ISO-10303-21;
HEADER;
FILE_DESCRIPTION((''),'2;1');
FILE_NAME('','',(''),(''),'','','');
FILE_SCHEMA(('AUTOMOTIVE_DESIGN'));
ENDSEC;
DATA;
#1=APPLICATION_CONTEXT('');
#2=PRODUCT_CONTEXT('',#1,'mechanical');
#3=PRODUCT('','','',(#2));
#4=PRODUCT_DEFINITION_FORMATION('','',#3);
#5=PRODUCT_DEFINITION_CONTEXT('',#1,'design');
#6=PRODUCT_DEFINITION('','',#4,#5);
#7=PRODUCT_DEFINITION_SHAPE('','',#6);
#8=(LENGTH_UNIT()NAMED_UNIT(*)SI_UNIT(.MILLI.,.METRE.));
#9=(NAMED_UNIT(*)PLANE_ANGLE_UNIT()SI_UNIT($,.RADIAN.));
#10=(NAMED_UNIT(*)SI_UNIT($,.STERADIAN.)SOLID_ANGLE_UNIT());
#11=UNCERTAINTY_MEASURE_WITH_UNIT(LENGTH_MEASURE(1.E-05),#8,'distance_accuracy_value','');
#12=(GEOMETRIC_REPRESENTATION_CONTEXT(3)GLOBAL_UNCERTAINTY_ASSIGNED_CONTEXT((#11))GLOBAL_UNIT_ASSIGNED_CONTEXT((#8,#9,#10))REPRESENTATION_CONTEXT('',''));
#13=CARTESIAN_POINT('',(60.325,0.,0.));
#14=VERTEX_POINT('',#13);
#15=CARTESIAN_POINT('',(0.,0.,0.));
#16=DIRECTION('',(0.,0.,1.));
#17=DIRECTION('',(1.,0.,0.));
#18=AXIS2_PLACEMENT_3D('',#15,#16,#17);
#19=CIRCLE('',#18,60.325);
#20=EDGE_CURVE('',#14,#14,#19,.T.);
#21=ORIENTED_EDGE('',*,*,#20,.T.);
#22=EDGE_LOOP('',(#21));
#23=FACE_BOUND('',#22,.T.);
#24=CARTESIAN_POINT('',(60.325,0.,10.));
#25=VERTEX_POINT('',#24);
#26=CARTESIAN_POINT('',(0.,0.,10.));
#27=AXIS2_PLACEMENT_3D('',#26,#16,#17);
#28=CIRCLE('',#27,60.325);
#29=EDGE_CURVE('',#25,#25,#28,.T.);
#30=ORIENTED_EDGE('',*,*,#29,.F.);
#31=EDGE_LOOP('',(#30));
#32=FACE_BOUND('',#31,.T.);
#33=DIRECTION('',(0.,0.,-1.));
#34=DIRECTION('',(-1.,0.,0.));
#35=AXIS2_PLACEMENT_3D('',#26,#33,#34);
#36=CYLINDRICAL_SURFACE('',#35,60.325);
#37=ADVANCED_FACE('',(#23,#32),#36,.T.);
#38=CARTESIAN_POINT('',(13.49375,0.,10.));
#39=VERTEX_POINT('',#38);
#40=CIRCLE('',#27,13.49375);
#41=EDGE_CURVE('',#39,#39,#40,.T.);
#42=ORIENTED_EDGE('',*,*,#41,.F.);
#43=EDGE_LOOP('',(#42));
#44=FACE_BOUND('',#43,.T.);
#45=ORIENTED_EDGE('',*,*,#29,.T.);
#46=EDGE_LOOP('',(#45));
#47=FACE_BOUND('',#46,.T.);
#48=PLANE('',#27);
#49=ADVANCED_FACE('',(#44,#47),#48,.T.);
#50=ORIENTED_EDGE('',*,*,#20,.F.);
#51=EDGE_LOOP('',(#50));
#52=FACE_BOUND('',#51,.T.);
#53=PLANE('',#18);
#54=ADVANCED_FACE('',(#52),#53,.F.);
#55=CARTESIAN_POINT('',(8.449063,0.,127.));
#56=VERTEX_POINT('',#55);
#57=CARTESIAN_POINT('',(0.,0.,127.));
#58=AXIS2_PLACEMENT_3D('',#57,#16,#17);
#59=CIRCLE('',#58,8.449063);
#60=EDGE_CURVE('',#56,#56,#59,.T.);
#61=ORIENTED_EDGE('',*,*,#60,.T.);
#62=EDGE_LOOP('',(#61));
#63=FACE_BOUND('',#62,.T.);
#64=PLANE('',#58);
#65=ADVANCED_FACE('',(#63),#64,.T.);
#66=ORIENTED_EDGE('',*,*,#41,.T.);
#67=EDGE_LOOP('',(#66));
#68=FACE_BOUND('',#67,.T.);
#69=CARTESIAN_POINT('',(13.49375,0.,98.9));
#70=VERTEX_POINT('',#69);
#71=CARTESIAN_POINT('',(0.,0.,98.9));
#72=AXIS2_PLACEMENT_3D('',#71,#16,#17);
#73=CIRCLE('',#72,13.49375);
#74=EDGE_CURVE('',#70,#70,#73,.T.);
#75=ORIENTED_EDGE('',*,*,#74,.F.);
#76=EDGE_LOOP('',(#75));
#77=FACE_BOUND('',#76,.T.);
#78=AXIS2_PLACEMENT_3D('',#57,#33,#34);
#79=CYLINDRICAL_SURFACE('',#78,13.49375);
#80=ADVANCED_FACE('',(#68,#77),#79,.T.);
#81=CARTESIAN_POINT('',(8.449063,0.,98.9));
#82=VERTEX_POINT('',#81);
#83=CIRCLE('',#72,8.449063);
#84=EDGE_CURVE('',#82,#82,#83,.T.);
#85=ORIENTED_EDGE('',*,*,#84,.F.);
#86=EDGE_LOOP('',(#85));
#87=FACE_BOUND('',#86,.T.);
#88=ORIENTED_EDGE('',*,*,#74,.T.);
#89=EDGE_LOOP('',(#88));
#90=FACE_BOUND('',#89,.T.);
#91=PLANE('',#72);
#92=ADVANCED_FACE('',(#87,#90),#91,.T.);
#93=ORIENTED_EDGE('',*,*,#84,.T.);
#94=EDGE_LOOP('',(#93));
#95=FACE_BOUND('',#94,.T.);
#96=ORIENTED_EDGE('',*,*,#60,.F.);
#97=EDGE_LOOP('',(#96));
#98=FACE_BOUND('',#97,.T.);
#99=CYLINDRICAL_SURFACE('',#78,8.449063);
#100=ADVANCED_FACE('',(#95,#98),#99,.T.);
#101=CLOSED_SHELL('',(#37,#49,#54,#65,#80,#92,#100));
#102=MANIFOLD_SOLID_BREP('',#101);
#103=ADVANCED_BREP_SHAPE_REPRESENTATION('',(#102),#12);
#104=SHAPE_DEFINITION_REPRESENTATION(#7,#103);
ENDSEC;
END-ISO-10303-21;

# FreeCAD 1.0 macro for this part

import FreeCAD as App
import Part
import Sketcher
from FreeCAD import Vector
Q = App.Units.Quantity

doc = App.newDocument("Part")
params = doc.addObject("Spreadsheet::Sheet", "Params")
for row, (alias, value) in enumerate([
    ("sketch1_diameter", "120.65 mm"),
    ("pad1_length", "10 mm"),
    ("pad2_length", "117 mm"),
    ("pocket1_length", "28.1 mm"),
    ("pad3_length", "28.1 mm"),
], start=1):
    params.set(f"A{row}", alias)
    params.set(f"B{row}", "=" + value)
    params.setAlias(f"B{row}", alias)

body = doc.addObject("PartDesign::Body", "Body")

# Sketch on XY plane
sketch1 = doc.addObject("Sketcher::SketchObject", "Sketch")
body.addObject(sketch1)
sketch1.AttachmentSupport = (doc.XY_Plane, [""])
sketch1.MapMode = "FlatFace"
sketch1.addGeometry(Part.Circle(Vector(0, 0, 0), Vector(0, 0, 1), 60), False)
sketch1.addConstraint(Sketcher.Constraint("Coincident", 0, 3, -1, 1))
sketch1.addConstraint(Sketcher.Constraint("Diameter", 0, Q("120.65 mm")))
sketch1.setExpression("Constraints[1]", "Params.sketch1_diameter")
pad1 = doc.addObject("PartDesign::Pad", "Pad")
body.addObject(pad1)
pad1.Profile = sketch1
pad1.setExpression("Length", "Params.pad1_length")

# Sketch on XY plane
sketch2 = doc.addObject("Sketcher::SketchObject", "Sketch001")
body.addObject(sketch2)
sketch2.AttachmentSupport = (doc.XY_Plane, [""])
sketch2.MapMode = "FlatFace"
sketch2.AttachmentOffset = App.Placement(Vector(0, 0, 10), App.Rotation())
sketch2.addGeometry(Part.Circle(Vector(0, 0, 0), Vector(0, 0, 1), 13), False)
sketch2.addConstraint(Sketcher.Constraint("Coincident", 0, 3, -1, 1))
sketch2.addConstraint(Sketcher.Constraint("Diameter", 0, Q("26.9875 mm")))
pad2 = doc.addObject("PartDesign::Pad", "Pad001")
body.addObject(pad2)
pad2.Profile = sketch2
pad2.setExpression("Length", "Params.pad2_length")

# Sketch on XY plane
sketch3 = doc.addObject("Sketcher::SketchObject", "Sketch002")
body.addObject(sketch3)
sketch3.AttachmentSupport = (doc.XY_Plane, [""])
sketch3.MapMode = "FlatFace"
sketch3.AttachmentOffset = App.Placement(Vector(0, 0, 98.9), App.Rotation())
sketch3.addGeometry(Part.Circle(Vector(0, 0, 0), Vector(0, 0, 1), 13), False)
sketch3.addConstraint(Sketcher.Constraint("Coincident", 0, 3, -1, 1))
sketch3.addConstraint(Sketcher.Constraint("Diameter", 0, Q("26.9875 mm")))
pocket1 = doc.addObject("PartDesign::Pocket", "Pocket")
body.addObject(pocket1)
pocket1.Profile = sketch3
pocket1.setExpression("Length", "Params.pocket1_length")
pocket1.Reversed = True

# Sketch on XY plane
sketch4 = doc.addObject("Sketcher::SketchObject", "Sketch003")
body.addObject(sketch4)
sketch4.AttachmentSupport = (doc.XY_Plane, [""])
sketch4.MapMode = "FlatFace"
sketch4.AttachmentOffset = App.Placement(Vector(0, 0, 98.9), App.Rotation())
sketch4.addGeometry(Part.Circle(Vector(0, 0, 0), Vector(0, 0, 1), 8), False)
sketch4.addConstraint(Sketcher.Constraint("Coincident", 0, 3, -1, 1))
sketch4.addConstraint(Sketcher.Constraint("Diameter", 0, Q("16.898126 mm")))
pad3 = doc.addObject("PartDesign::Pad", "Pad002")
body.addObject(pad3)
pad3.Profile = sketch4
pad3.setExpression("Length", "Params.pad3_length")

doc.recompute()
